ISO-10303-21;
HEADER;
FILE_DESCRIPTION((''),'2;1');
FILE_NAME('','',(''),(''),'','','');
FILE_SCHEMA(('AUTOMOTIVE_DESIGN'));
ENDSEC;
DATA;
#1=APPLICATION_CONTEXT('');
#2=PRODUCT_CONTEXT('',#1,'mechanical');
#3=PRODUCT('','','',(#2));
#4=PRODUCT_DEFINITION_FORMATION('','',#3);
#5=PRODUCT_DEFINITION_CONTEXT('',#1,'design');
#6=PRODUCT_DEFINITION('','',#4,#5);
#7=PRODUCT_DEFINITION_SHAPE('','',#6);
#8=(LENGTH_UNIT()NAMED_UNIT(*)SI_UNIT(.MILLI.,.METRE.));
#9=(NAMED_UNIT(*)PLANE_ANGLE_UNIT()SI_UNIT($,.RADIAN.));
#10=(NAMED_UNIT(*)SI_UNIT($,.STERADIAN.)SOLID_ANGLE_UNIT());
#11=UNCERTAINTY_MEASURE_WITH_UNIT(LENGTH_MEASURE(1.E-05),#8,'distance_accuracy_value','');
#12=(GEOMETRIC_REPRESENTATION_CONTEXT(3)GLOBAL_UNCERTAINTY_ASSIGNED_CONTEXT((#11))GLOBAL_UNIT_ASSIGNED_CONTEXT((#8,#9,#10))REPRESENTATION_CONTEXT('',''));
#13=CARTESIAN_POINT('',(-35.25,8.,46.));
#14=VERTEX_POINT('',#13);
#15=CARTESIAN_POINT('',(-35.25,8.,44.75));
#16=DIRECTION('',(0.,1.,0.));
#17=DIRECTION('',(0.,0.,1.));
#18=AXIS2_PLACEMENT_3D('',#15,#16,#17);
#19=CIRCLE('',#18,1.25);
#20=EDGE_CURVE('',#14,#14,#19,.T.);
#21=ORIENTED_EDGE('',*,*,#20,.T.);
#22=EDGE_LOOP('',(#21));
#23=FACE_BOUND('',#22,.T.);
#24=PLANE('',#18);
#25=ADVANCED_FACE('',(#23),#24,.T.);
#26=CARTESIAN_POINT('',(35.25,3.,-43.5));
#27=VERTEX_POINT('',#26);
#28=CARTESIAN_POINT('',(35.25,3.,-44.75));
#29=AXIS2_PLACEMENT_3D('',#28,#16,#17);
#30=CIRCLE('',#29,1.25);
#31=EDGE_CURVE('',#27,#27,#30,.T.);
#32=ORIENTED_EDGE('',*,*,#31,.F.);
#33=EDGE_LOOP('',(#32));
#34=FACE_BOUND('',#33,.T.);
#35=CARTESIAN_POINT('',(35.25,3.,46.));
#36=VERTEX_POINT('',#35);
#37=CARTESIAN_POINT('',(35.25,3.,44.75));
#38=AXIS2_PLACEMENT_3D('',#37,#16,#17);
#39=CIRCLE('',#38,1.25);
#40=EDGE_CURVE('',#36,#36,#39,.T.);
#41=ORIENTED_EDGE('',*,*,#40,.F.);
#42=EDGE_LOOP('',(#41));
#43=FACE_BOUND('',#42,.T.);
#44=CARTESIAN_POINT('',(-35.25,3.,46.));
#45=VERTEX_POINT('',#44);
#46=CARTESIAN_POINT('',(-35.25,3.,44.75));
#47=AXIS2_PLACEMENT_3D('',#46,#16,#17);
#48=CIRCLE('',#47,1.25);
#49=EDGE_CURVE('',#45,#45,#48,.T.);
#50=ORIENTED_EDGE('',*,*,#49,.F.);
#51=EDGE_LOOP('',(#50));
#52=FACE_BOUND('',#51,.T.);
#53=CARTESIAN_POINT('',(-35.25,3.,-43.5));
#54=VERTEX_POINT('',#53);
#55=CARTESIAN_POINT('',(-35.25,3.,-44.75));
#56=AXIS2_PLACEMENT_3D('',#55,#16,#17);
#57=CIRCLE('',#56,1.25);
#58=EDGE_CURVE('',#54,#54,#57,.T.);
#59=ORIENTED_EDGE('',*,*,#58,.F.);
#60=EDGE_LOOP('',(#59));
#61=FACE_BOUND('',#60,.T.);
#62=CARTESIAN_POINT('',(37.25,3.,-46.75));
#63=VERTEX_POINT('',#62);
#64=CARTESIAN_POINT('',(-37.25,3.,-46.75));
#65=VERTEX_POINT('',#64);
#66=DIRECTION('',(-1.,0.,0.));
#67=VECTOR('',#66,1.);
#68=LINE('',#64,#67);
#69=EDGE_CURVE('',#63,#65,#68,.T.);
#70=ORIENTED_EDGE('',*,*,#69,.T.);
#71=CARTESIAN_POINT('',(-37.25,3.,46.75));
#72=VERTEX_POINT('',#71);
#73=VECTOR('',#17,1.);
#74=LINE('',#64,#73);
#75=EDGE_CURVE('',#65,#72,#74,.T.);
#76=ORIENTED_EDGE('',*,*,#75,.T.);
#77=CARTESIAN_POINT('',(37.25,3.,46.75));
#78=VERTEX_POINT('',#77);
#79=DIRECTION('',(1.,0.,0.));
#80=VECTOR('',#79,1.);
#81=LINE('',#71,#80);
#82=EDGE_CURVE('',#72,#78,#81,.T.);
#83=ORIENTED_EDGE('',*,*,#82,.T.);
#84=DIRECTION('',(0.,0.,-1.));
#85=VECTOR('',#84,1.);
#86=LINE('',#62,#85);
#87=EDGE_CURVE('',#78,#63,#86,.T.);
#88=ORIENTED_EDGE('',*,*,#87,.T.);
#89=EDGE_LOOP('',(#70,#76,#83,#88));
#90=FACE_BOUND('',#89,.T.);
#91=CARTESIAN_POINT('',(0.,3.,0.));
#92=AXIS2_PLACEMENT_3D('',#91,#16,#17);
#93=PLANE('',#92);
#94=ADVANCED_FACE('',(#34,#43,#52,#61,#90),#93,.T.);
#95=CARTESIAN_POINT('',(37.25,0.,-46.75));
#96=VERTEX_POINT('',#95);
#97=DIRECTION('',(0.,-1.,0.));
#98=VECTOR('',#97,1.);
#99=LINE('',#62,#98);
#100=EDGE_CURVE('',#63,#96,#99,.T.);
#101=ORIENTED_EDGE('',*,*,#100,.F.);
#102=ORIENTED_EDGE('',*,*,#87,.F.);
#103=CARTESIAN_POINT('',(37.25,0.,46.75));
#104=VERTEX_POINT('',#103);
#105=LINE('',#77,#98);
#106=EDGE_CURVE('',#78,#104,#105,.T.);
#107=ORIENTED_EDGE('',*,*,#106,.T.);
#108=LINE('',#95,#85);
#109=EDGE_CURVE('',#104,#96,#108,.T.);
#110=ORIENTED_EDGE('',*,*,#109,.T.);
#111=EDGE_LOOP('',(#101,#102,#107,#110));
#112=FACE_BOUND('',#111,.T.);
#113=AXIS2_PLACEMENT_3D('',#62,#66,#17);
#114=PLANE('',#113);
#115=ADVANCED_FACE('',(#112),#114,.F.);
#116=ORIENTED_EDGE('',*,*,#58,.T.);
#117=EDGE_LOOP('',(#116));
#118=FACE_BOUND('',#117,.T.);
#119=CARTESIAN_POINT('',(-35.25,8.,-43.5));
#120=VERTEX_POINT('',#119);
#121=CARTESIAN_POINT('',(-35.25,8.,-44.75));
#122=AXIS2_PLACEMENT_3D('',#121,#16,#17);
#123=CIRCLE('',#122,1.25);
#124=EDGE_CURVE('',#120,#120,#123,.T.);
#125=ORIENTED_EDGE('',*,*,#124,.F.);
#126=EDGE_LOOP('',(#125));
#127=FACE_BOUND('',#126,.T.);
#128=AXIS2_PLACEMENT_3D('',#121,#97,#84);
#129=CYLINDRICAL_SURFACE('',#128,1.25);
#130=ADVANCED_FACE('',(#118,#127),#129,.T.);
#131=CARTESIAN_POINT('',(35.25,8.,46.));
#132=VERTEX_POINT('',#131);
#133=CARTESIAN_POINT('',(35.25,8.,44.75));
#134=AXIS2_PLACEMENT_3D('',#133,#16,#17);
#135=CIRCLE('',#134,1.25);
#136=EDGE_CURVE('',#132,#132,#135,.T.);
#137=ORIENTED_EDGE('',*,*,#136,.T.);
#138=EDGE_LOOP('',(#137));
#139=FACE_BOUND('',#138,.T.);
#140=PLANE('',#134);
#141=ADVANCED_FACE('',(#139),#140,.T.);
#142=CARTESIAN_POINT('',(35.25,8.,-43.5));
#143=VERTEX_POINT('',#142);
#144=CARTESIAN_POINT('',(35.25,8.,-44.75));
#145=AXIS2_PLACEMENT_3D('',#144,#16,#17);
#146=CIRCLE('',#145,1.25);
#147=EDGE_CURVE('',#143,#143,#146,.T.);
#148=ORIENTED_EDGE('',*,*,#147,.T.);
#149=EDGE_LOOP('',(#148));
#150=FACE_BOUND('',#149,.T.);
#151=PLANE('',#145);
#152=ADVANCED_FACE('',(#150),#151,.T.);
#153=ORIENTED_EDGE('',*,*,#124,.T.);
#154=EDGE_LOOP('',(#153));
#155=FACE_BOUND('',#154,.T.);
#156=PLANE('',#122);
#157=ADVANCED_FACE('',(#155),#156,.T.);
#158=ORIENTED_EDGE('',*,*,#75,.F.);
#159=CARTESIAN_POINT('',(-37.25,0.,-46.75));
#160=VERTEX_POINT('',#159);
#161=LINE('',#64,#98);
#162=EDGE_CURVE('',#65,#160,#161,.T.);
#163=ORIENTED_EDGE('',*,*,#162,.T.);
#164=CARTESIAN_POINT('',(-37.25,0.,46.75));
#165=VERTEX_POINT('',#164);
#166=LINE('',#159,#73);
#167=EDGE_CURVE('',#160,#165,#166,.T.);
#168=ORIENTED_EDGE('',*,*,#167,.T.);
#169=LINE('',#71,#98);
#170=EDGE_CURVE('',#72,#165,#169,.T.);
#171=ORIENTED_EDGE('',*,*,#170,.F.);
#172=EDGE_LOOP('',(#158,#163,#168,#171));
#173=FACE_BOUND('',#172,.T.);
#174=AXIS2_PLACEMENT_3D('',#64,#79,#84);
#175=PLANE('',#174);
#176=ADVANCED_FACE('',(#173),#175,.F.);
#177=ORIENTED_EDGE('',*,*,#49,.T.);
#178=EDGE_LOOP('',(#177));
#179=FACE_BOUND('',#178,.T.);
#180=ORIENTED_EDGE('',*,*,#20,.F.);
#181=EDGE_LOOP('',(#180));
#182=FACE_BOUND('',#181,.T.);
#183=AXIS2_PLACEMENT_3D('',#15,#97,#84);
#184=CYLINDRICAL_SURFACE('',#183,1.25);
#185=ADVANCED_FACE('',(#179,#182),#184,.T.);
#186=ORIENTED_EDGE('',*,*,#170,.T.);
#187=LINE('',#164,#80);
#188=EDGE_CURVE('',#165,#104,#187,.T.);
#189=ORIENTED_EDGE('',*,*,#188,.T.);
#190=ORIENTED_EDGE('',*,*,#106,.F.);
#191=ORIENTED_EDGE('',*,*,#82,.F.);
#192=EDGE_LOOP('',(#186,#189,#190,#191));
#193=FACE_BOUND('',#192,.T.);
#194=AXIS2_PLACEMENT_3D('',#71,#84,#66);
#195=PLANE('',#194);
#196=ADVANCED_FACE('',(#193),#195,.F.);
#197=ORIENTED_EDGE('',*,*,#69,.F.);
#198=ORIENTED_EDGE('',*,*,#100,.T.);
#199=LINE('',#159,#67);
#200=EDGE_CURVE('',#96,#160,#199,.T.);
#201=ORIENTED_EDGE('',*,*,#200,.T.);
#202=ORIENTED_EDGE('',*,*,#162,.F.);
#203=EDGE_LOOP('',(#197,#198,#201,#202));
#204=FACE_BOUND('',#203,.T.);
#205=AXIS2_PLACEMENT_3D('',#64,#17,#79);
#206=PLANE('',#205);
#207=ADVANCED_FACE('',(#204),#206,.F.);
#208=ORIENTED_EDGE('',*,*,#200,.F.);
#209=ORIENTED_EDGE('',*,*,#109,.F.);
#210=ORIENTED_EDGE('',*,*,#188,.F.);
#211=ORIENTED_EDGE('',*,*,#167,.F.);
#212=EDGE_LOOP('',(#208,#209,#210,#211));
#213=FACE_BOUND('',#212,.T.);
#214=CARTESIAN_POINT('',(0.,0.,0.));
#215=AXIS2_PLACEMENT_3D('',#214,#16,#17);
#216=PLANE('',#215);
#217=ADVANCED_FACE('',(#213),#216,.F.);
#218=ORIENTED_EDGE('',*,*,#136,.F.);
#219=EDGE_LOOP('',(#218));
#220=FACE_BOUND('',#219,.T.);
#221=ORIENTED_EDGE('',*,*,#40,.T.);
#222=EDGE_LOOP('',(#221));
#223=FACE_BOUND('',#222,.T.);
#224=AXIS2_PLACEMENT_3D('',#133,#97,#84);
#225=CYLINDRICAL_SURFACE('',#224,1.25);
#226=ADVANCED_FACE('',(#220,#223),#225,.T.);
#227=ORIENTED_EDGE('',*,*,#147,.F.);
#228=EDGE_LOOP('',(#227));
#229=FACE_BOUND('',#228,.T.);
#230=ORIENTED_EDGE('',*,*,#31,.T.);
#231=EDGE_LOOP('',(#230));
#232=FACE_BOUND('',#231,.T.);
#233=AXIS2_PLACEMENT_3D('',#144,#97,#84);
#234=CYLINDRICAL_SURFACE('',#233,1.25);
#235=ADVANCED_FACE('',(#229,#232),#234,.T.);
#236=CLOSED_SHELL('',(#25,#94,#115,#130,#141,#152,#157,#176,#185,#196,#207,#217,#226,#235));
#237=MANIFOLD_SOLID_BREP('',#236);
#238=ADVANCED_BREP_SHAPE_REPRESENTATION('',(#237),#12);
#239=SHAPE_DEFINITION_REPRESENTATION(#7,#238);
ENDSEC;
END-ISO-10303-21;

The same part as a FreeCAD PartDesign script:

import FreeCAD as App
import Part
import Sketcher

V = App.Vector
Q = App.Units.Quantity


def add_polygon(sketch, points):
    """Adds a closed chain of lines whose ends are joined by coincident constraints."""
    first, n = sketch.GeometryCount, len(points)
    for a, b in zip(points, points[1:] + points[:1]):
        sketch.addGeometry(Part.LineSegment(App.Vector(*a, 0), App.Vector(*b, 0)), False)
    for i in range(n):
        sketch.addConstraint(Sketcher.Constraint("Coincident", first + i, 2, first + (i + 1) % n, 1))

doc = App.newDocument("Part")
body = doc.addObject("PartDesign::Body", "Body")

sketch1 = body.newObject("Sketcher::SketchObject", "Sketch")
sketch1.AttachmentSupport = (doc.getObject("XZ_Plane"), [""])
sketch1.MapMode = "FlatFace"
add_polygon(sketch1, [(-37, -47), (-37, 47), (37, 47), (37, -47)])
sketch1.addConstraint(Sketcher.Constraint("Vertical", 0))
sketch1.addConstraint(Sketcher.Constraint("Horizontal", 1))
sketch1.addConstraint(Sketcher.Constraint("Vertical", 2))
sketch1.addConstraint(Sketcher.Constraint("Horizontal", 3))
sketch1.addConstraint(Sketcher.Constraint("Symmetric", 0, 2, 2, 2, -1, 1))
sketch1.addConstraint(Sketcher.Constraint("DistanceX", 1, 1, 1, 2, Q("74.5 mm")))
sketch1.addConstraint(Sketcher.Constraint("DistanceY", 0, 1, 0, 2, Q("93.5 mm")))
pad1 = body.newObject("PartDesign::Pad", "Pad")
pad1.Profile = sketch1
pad1.Length = 3
pad1.Reversed = True

sketch2 = body.newObject("Sketcher::SketchObject", "Sketch001")
sketch2.AttachmentSupport = (doc.getObject("XZ_Plane"), [""])
sketch2.MapMode = "FlatFace"
sketch2.AttachmentOffset = App.Placement(V(0, 0, -3), App.Rotation())
sketch2.addGeometry(Part.Circle(V(-35.2, -44.8, 0), V(0, 0, 1), 1.2), False)
sketch2.addGeometry(Part.Circle(V(35.2, -44.8, 0), V(0, 0, 1), 1.2), False)
sketch2.addGeometry(Part.Circle(V(-35.2, 44.8, 0), V(0, 0, 1), 1.2), False)
sketch2.addGeometry(Part.Circle(V(35.2, 44.8, 0), V(0, 0, 1), 1.2), False)
sketch2.addConstraint(Sketcher.Constraint("Equal", 0, 1))
sketch2.addConstraint(Sketcher.Constraint("Equal", 1, 2))
sketch2.addConstraint(Sketcher.Constraint("Equal", 2, 3))
sketch2.addConstraint(Sketcher.Constraint("Symmetric", 1, 3, 2, 3, -1, 1))
sketch2.addConstraint(Sketcher.Constraint("Symmetric", 0, 3, 3, 3, -1, 1))
sketch2.addConstraint(Sketcher.Constraint("Symmetric", 0, 3, 1, 3, -2))
sketch2.addConstraint(Sketcher.Constraint("Diameter", 0, Q("2.5 mm")))
sketch2.addConstraint(Sketcher.Constraint("DistanceX", 0, 3, 1, 3, Q("70.5 mm")))
sketch2.addConstraint(Sketcher.Constraint("DistanceY", 0, 3, 2, 3, Q("89.5 mm")))
pad2 = body.newObject("PartDesign::Pad", "Pad001")
pad2.Profile = sketch2
pad2.Length = 5
pad2.Reversed = True

doc.recompute()
